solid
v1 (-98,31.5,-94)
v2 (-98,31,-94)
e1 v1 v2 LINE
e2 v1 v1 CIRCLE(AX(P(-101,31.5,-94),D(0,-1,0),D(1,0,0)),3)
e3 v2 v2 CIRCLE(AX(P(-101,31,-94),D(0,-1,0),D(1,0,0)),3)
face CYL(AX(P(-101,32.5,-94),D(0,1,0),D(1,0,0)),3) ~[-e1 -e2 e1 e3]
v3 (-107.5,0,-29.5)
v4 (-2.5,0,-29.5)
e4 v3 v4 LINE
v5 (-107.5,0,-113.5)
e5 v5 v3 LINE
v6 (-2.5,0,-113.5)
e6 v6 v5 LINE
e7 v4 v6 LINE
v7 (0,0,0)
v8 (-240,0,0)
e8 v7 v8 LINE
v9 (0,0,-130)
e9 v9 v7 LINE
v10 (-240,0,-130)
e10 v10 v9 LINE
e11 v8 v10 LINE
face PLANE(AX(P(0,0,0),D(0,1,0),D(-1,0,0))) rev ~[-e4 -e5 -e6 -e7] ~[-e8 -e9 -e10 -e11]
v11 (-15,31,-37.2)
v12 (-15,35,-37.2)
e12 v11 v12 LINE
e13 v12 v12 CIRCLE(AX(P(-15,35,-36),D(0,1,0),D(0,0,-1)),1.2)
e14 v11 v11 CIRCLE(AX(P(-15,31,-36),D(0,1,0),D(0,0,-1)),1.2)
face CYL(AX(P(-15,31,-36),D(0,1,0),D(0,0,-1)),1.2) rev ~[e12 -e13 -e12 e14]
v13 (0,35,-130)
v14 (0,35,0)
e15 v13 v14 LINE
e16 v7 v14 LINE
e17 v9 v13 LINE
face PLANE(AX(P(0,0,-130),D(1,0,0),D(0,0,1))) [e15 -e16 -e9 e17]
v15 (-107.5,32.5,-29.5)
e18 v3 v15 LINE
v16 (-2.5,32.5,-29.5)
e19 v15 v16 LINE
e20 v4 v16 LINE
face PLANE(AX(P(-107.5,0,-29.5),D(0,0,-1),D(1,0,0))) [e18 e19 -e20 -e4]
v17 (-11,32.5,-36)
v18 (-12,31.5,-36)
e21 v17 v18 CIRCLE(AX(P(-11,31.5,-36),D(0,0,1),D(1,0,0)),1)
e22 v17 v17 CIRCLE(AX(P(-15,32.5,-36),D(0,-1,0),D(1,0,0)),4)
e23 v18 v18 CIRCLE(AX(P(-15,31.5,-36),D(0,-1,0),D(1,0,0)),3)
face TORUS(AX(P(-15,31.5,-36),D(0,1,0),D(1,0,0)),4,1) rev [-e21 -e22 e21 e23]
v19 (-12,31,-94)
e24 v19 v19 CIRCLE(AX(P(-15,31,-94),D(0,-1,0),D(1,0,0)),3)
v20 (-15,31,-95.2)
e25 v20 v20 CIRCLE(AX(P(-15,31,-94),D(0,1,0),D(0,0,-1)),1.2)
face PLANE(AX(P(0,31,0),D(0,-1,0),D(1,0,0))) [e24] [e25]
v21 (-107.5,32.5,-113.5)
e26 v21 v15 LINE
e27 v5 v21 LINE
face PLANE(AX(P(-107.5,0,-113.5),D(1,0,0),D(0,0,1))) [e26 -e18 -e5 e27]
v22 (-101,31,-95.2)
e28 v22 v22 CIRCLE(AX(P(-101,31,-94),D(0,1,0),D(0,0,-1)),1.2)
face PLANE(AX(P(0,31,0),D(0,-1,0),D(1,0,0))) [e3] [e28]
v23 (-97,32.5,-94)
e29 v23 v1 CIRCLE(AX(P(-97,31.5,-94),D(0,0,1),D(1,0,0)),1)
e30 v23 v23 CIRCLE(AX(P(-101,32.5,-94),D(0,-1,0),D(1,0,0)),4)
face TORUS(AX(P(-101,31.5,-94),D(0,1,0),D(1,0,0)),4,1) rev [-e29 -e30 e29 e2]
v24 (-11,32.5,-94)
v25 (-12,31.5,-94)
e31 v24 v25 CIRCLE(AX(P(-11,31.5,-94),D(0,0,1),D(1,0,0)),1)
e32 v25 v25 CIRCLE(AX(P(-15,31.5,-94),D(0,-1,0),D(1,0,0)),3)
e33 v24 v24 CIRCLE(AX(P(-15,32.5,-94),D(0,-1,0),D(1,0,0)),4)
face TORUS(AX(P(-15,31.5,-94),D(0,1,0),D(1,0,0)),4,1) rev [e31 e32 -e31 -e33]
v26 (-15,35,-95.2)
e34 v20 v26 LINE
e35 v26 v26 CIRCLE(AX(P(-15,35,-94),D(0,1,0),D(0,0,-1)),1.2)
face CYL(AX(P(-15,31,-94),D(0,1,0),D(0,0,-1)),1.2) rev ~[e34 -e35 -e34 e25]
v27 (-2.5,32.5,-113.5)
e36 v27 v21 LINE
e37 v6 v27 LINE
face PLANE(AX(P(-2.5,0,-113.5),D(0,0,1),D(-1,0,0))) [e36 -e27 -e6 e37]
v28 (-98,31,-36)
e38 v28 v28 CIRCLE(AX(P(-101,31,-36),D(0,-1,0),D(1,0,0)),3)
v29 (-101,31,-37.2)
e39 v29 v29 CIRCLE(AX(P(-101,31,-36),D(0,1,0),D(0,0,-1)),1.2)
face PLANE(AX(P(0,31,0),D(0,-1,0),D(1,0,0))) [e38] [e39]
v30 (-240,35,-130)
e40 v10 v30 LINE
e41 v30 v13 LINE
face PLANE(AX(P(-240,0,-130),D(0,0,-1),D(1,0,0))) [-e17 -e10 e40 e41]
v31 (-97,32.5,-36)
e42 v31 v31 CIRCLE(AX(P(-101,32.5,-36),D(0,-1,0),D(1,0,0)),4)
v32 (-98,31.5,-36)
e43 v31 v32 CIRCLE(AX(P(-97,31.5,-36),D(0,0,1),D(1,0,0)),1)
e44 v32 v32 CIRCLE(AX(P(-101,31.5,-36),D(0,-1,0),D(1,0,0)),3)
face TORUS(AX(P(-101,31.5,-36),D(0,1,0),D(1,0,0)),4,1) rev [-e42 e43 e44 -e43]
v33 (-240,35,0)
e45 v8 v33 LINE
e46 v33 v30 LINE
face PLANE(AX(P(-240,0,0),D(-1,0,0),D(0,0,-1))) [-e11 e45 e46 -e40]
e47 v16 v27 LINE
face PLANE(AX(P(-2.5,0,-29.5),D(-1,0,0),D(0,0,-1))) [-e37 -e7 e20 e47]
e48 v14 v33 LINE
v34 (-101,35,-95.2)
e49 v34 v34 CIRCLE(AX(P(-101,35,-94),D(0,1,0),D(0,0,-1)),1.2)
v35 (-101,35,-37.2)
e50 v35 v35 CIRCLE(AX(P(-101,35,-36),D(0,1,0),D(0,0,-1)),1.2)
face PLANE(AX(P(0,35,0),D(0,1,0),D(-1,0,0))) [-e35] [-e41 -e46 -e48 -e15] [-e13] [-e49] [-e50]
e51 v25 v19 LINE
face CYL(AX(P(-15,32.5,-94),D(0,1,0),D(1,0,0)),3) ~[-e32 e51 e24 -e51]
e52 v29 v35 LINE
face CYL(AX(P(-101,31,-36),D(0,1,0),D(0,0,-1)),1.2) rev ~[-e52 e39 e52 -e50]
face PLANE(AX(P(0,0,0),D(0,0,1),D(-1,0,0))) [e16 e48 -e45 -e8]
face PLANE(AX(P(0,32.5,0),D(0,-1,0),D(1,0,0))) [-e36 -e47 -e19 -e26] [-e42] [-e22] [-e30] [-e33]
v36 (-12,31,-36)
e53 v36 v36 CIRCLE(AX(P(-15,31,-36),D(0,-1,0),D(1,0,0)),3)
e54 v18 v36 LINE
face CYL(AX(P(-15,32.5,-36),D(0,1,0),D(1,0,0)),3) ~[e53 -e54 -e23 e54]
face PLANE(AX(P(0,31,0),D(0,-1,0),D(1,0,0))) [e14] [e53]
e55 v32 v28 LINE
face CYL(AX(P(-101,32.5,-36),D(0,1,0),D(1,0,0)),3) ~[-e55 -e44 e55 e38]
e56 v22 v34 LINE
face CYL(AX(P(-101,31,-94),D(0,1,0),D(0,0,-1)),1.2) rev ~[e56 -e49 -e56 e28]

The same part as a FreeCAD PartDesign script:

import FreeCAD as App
import Part
import Sketcher
Q = App.Units.Quantity


def edges_at(feature, points):
    """Names of the edges that pass closest to the given points."""
    edges = feature.Shape.Edges
    near = lambda p: min(range(len(edges)), key=lambda i: edges[i].distToShape(Part.Vertex(*p))[0])
    return sorted({f"Edge{near(p) + 1}" for p in points})

doc = App.newDocument("Part")
body = doc.addObject("PartDesign::Body", "Body")

# Sketch on XZ plane
sketch1 = doc.addObject("Sketcher::SketchObject", "Sketch")
body.addObject(sketch1)
sketch1.AttachmentSupport = (doc.XZ_Plane, [""])
sketch1.MapMode = "FlatFace"
sketch1.addGeometry([
    Part.LineSegment(App.Vector(-240, 0, 0), App.Vector(0, 0, 0)),
    Part.LineSegment(App.Vector(0, 0, 0), App.Vector(0, -130, 0)),
    Part.LineSegment(App.Vector(0, -130, 0), App.Vector(-240, -130, 0)),
    Part.LineSegment(App.Vector(-240, -130, 0), App.Vector(-240, 0, 0)),
], False)
sketch1.addConstraint([
    Sketcher.Constraint("Coincident", 0, 2, 1, 1),
    Sketcher.Constraint("Coincident", 1, 2, 2, 1),
    Sketcher.Constraint("Coincident", 2, 2, 3, 1),
    Sketcher.Constraint("Coincident", 3, 2, 0, 1),
    Sketcher.Constraint("Horizontal", 0),
    Sketcher.Constraint("Vertical", 1),
    Sketcher.Constraint("Horizontal", 2),
    Sketcher.Constraint("Vertical", 3),
    Sketcher.Constraint("Coincident", 0, 2, -1, 1),
    Sketcher.Constraint("DistanceX", 0, 1, 0, 2, Q("240 mm")),
    Sketcher.Constraint("DistanceY", 1, 2, 1, 1, Q("130 mm")),
])
pad1 = doc.addObject("PartDesign::Pad", "Pad")
body.addObject(pad1)
pad1.Profile = sketch1
pad1.Length = 35
pad1.Reversed = True

# Sketch on XZ plane
sketch2 = doc.addObject("Sketcher::SketchObject", "Sketch001")
body.addObject(sketch2)
sketch2.AttachmentSupport = (doc.XZ_Plane, [""])
sketch2.MapMode = "FlatFace"
sketch2.addGeometry([
    Part.LineSegment(App.Vector(-107.5, -113.5, 0), App.Vector(-2.5, -113.5, 0)),
    Part.LineSegment(App.Vector(-2.5, -113.5, 0), App.Vector(-2.5, -29.5, 0)),
    Part.LineSegment(App.Vector(-2.5, -29.5, 0), App.Vector(-107.5, -29.5, 0)),
    Part.LineSegment(App.Vector(-107.5, -29.5, 0), App.Vector(-107.5, -113.5, 0)),
], False)
sketch2.addConstraint([
    Sketcher.Constraint("Coincident", 0, 2, 1, 1),
    Sketcher.Constraint("Coincident", 1, 2, 2, 1),
    Sketcher.Constraint("Coincident", 2, 2, 3, 1),
    Sketcher.Constraint("Coincident", 3, 2, 0, 1),
    Sketcher.Constraint("Horizontal", 0),
    Sketcher.Constraint("Vertical", 1),
    Sketcher.Constraint("Horizontal", 2),
    Sketcher.Constraint("Vertical", 3),
    Sketcher.Constraint("DistanceX", 0, 1, 0, 2, Q("105 mm")),
    Sketcher.Constraint("DistanceY", 1, 1, 1, 2, Q("84 mm")),
    Sketcher.Constraint("DistanceX", 0, 2, -1, 1, Q("2.5 mm")),
    Sketcher.Constraint("DistanceY", 0, 2, -1, 1, Q("113.5 mm")),
])
pocket1 = doc.addObject("PartDesign::Pocket", "Pocket")
body.addObject(pocket1)
pocket1.Profile = sketch2
pocket1.Length = 32.5

# Sketch on XZ plane
sketch3 = doc.addObject("Sketcher::SketchObject", "Sketch002")
body.addObject(sketch3)
sketch3.AttachmentSupport = (doc.XZ_Plane, [""])
sketch3.MapMode = "FlatFace"
sketch3.AttachmentOffset = App.Placement(App.Vector(0, 0, -32.5), App.Rotation())
sketch3.addGeometry([
    Part.Circle(App.Vector(-15, -94, 0), App.Vector(0, 0, 1), 3),
    Part.Circle(App.Vector(-101, -94, 0), App.Vector(0, 0, 1), 3),
    Part.Circle(App.Vector(-15, -36, 0), App.Vector(0, 0, 1), 3),
    Part.Circle(App.Vector(-101, -36, 0), App.Vector(0, 0, 1), 3),
], False)
sketch3.addConstraint([
    Sketcher.Constraint("Equal", 0, 1),
    Sketcher.Constraint("Equal", 1, 2),
    Sketcher.Constraint("Equal", 2, 3),
    Sketcher.Constraint("Horizontal", 0, 3, 1, 3),
    Sketcher.Constraint("Horizontal", 2, 3, 3, 3),
    Sketcher.Constraint("Vertical", 0, 3, 2, 3),
    Sketcher.Constraint("Vertical", 1, 3, 3, 3),
    Sketcher.Constraint("Diameter", 0, Q("6 mm")),
    Sketcher.Constraint("DistanceX", 0, 3, -1, 1, Q("15 mm")),
    Sketcher.Constraint("DistanceY", 0, 3, -1, 1, Q("94 mm")),
    Sketcher.Constraint("DistanceX", 1, 3, -1, 1, Q("101 mm")),
    Sketcher.Constraint("DistanceY", 2, 3, -1, 1, Q("36 mm")),
])
pad2 = doc.addObject("PartDesign::Pad", "Pad001")
body.addObject(pad2)
pad2.Profile = sketch3
pad2.Length = 1.5
doc.recompute()

fillet = doc.addObject("PartDesign::Fillet", "Fillet")
body.addObject(fillet)
fillet.Base = (pad2, edges_at(pad2, [
    (-18, 32.5, -94),
    (-104, 32.5, -94),
    (-18, 32.5, -36),
    (-104, 32.5, -36),
]))
fillet.Radius = 1

# Sketch on XZ plane
sketch4 = doc.addObject("Sketcher::SketchObject", "Sketch003")
body.addObject(sketch4)
sketch4.AttachmentSupport = (doc.XZ_Plane, [""])
sketch4.MapMode = "FlatFace"
sketch4.AttachmentOffset = App.Placement(App.Vector(0, 0, -31), App.Rotation())
sketch4.addGeometry([
    Part.Circle(App.Vector(-15, -94, 0), App.Vector(0, 0, 1), 1.2),
    Part.Circle(App.Vector(-15, -36, 0), App.Vector(0, 0, 1), 1.2),
    Part.Circle(App.Vector(-101, -36, 0), App.Vector(0, 0, 1), 1.2),
    Part.Circle(App.Vector(-101, -94, 0), App.Vector(0, 0, 1), 1.2),
], False)
sketch4.addConstraint([
    Sketcher.Constraint("Equal", 0, 1),
    Sketcher.Constraint("Equal", 1, 2),
    Sketcher.Constraint("Equal", 2, 3),
    Sketcher.Constraint("Horizontal", 1, 3, 2, 3),
    Sketcher.Constraint("Horizontal", 0, 3, 3, 3),
    Sketcher.Constraint("Vertical", 0, 3, 1, 3),
    Sketcher.Constraint("Vertical", 2, 3, 3, 3),
    Sketcher.Constraint("Diameter", 0, Q("2.4 mm")),
    Sketcher.Constraint("DistanceX", 0, 3, -1, 1, Q("15 mm")),
    Sketcher.Constraint("DistanceY", 0, 3, -1, 1, Q("94 mm")),
    Sketcher.Constraint("DistanceY", 1, 3, -1, 1, Q("36 mm")),
    Sketcher.Constraint("DistanceX", 2, 3, -1, 1, Q("101 mm")),
])
doc.recompute()
hole = doc.addObject("PartDesign::Hole", "Hole")
body.addObject(hole)
hole.Profile = sketch4
hole.ThreadType = "None"
hole.Diameter = 2.4
hole.DepthType = "Dimension"
hole.Depth = 4
hole.DrillPoint = "Flat"

doc.recompute()
